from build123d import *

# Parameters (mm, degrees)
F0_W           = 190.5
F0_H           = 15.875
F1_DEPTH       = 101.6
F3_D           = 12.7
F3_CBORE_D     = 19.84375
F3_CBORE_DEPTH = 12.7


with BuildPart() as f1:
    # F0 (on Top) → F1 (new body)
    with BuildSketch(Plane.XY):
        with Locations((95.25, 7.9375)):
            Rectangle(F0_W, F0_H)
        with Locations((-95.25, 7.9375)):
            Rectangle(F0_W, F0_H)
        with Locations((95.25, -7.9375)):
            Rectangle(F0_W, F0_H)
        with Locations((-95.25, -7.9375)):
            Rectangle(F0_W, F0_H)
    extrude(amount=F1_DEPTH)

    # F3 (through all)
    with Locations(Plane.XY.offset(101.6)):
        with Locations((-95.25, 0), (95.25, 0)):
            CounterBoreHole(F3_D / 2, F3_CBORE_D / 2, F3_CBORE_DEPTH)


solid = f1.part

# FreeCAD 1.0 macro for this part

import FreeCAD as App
import Part
import Sketcher
from FreeCAD import Vector
Q = App.Units.Quantity


def add_polygon(sketch, points):
    """Adds a closed chain of lines whose ends are joined by coincident constraints."""
    first, n = sketch.GeometryCount, len(points)
    for a, b in zip(points, points[1:] + points[:1]):
        sketch.addGeometry(Part.LineSegment(App.Vector(*a, 0), App.Vector(*b, 0)), False)
    for i in range(n):
        sketch.addConstraint(Sketcher.Constraint("Coincident", first + i, 2, first + (i + 1) % n, 1))

doc = App.newDocument("Part")
body = doc.addObject("PartDesign::Body", "Body")

sketch1 = body.newObject("Sketcher::SketchObject", "Sketch")
sketch1.AttachmentSupport = (doc.getObject("XY_Plane"), [""])
sketch1.MapMode = "FlatFace"
add_polygon(sketch1, [(190, 16), (-190, 16), (-190, -16), (190, -16)])
sketch1.addConstraint([
    Sketcher.Constraint("Horizontal", 0),
    Sketcher.Constraint("Vertical", 1),
    Sketcher.Constraint("Horizontal", 2),
    Sketcher.Constraint("Vertical", 3),
    Sketcher.Constraint("Symmetric", 0, 2, 2, 2, -1, 1),
    Sketcher.Constraint("DistanceX", 0, 2, 0, 1, Q("15 in")),
    Sketcher.Constraint("DistanceY", 1, 2, 1, 1, Q("1.25 in")),
])
pad1 = body.newObject("PartDesign::Pad", "Pad")
pad1.Profile = sketch1
pad1.Length = Q("4 in")

sketch2 = body.newObject("Sketcher::SketchObject", "Sketch001")
sketch2.AttachmentSupport = (doc.getObject("XY_Plane"), [""])
sketch2.MapMode = "FlatFace"
sketch2.AttachmentOffset = App.Placement(Vector(0, 0, 4 * 25.4), App.Rotation())
sketch2.addGeometry([
    Part.Circle(Vector(-95, 0, 0), Vector(0, 0, 1), 6),
    Part.Circle(Vector(95, 0, 0), Vector(0, 0, 1), 6),
], False)
sketch2.addConstraint([
    Sketcher.Constraint("Equal", 0, 1),
    Sketcher.Constraint("Symmetric", 0, 3, 1, 3, -1, 1),
    Sketcher.Constraint("PointOnObject", 0, 3, -1),
    Sketcher.Constraint("Diameter", 0, Q("0.5 in")),
    Sketcher.Constraint("DistanceX", 0, 3, 1, 3, Q("7.5 in")),
])
doc.recompute()
hole = body.newObject("PartDesign::Hole", "Hole")
hole.Profile = sketch2
hole.ThreadType = "None"
hole.Diameter = Q("0.5 in")
hole.DepthType = "ThroughAll"
hole.HoleCutType = "Counterbore"
hole.HoleCutDiameter = Q("0.78125 in")
hole.HoleCutDepth = Q("0.5 in")

doc.recompute()
